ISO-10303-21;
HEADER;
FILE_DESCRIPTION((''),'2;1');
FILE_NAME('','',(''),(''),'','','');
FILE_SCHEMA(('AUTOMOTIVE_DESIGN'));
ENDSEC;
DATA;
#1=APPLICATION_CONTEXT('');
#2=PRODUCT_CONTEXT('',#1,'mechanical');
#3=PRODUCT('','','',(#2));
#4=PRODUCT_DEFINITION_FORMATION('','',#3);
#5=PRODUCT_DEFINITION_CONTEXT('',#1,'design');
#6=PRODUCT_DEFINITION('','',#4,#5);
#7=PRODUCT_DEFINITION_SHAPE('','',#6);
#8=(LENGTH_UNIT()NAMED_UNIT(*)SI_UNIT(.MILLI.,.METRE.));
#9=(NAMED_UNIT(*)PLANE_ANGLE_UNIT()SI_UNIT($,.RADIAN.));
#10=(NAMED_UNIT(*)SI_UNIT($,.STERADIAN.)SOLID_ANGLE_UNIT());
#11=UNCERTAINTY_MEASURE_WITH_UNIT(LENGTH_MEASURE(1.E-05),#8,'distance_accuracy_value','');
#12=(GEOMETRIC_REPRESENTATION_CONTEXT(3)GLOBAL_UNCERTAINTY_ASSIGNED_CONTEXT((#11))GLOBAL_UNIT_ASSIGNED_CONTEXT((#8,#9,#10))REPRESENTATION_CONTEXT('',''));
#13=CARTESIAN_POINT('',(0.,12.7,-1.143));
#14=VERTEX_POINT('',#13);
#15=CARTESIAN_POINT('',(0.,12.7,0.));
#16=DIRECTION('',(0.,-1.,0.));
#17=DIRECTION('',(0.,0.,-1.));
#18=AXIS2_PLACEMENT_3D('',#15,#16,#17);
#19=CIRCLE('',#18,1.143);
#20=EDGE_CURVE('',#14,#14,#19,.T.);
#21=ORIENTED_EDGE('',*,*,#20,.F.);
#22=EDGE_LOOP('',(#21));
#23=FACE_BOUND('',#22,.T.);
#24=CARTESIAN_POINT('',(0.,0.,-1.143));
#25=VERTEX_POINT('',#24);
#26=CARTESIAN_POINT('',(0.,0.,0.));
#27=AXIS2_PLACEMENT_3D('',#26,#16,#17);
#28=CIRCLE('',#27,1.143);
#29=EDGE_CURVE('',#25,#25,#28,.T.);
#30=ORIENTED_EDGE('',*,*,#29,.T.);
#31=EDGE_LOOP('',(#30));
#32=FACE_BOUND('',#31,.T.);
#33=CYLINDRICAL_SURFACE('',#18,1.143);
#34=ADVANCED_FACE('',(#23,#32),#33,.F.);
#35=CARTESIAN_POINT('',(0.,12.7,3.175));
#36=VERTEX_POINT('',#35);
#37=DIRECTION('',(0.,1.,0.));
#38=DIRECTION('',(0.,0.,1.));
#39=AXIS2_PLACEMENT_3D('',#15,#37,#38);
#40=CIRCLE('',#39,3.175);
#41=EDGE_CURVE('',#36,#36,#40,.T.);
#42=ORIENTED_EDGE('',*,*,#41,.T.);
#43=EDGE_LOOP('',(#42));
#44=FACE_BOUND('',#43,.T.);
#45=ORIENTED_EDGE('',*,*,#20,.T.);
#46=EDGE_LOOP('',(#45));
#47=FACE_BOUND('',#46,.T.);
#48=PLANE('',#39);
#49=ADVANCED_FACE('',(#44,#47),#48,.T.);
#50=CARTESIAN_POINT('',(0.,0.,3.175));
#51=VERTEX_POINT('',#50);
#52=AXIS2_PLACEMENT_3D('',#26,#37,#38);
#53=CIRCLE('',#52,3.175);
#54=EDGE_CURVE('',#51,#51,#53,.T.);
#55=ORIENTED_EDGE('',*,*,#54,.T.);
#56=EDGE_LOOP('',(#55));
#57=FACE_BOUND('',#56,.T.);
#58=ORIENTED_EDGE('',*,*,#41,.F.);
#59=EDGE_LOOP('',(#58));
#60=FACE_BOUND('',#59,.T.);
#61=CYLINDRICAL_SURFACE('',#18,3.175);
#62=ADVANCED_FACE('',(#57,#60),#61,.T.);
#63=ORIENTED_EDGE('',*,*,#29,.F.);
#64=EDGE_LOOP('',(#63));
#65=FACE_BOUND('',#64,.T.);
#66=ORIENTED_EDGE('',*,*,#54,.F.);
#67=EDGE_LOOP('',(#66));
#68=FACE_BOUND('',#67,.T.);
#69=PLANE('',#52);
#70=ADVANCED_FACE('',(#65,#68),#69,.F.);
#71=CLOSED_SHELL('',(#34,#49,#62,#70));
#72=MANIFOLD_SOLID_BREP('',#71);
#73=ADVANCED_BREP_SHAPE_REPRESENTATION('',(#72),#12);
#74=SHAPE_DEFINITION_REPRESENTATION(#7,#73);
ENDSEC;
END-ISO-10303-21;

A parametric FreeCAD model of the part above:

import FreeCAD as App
import Part
import Sketcher
Q = App.Units.Quantity

doc = App.newDocument("Part")
body = doc.addObject("PartDesign::Body", "Body")

# Sketch on XZ plane
sketch1 = body.newObject("Sketcher::SketchObject", "Sketch")
sketch1.AttachmentSupport = (doc.getObject("XZ_Plane"), [""])
sketch1.MapMode = "FlatFace"
sketch1.addGeometry(Part.Circle(App.Vector(0, 0, 0), App.Vector(0, 0, 1), 3.2), False)
sketch1.addConstraint([
    Sketcher.Constraint("Coincident", 0, 3, -1, 1),
    Sketcher.Constraint("Diameter", 0, Q("0.25 in")),
])
pad1 = body.newObject("PartDesign::Pad", "Pad")
pad1.Profile = sketch1
pad1.Length = Q("0.5 in")
pad1.Reversed = True

# Sketch on XZ plane
sketch2 = body.newObject("Sketcher::SketchObject", "Sketch001")
sketch2.AttachmentSupport = (doc.getObject("XZ_Plane"), [""])
sketch2.MapMode = "FlatFace"
sketch2.addGeometry(Part.Circle(App.Vector(0, 0, 0), App.Vector(0, 0, 1), 1.1), False)
sketch2.addConstraint([
    Sketcher.Constraint("Coincident", 0, 3, -1, 1),
    Sketcher.Constraint("Diameter", 0, Q("0.09 in")),
])
pocket1 = body.newObject("PartDesign::Pocket", "Pocket")
pocket1.Profile = sketch2
pocket1.Length = Q("0.5 in")

doc.recompute()
